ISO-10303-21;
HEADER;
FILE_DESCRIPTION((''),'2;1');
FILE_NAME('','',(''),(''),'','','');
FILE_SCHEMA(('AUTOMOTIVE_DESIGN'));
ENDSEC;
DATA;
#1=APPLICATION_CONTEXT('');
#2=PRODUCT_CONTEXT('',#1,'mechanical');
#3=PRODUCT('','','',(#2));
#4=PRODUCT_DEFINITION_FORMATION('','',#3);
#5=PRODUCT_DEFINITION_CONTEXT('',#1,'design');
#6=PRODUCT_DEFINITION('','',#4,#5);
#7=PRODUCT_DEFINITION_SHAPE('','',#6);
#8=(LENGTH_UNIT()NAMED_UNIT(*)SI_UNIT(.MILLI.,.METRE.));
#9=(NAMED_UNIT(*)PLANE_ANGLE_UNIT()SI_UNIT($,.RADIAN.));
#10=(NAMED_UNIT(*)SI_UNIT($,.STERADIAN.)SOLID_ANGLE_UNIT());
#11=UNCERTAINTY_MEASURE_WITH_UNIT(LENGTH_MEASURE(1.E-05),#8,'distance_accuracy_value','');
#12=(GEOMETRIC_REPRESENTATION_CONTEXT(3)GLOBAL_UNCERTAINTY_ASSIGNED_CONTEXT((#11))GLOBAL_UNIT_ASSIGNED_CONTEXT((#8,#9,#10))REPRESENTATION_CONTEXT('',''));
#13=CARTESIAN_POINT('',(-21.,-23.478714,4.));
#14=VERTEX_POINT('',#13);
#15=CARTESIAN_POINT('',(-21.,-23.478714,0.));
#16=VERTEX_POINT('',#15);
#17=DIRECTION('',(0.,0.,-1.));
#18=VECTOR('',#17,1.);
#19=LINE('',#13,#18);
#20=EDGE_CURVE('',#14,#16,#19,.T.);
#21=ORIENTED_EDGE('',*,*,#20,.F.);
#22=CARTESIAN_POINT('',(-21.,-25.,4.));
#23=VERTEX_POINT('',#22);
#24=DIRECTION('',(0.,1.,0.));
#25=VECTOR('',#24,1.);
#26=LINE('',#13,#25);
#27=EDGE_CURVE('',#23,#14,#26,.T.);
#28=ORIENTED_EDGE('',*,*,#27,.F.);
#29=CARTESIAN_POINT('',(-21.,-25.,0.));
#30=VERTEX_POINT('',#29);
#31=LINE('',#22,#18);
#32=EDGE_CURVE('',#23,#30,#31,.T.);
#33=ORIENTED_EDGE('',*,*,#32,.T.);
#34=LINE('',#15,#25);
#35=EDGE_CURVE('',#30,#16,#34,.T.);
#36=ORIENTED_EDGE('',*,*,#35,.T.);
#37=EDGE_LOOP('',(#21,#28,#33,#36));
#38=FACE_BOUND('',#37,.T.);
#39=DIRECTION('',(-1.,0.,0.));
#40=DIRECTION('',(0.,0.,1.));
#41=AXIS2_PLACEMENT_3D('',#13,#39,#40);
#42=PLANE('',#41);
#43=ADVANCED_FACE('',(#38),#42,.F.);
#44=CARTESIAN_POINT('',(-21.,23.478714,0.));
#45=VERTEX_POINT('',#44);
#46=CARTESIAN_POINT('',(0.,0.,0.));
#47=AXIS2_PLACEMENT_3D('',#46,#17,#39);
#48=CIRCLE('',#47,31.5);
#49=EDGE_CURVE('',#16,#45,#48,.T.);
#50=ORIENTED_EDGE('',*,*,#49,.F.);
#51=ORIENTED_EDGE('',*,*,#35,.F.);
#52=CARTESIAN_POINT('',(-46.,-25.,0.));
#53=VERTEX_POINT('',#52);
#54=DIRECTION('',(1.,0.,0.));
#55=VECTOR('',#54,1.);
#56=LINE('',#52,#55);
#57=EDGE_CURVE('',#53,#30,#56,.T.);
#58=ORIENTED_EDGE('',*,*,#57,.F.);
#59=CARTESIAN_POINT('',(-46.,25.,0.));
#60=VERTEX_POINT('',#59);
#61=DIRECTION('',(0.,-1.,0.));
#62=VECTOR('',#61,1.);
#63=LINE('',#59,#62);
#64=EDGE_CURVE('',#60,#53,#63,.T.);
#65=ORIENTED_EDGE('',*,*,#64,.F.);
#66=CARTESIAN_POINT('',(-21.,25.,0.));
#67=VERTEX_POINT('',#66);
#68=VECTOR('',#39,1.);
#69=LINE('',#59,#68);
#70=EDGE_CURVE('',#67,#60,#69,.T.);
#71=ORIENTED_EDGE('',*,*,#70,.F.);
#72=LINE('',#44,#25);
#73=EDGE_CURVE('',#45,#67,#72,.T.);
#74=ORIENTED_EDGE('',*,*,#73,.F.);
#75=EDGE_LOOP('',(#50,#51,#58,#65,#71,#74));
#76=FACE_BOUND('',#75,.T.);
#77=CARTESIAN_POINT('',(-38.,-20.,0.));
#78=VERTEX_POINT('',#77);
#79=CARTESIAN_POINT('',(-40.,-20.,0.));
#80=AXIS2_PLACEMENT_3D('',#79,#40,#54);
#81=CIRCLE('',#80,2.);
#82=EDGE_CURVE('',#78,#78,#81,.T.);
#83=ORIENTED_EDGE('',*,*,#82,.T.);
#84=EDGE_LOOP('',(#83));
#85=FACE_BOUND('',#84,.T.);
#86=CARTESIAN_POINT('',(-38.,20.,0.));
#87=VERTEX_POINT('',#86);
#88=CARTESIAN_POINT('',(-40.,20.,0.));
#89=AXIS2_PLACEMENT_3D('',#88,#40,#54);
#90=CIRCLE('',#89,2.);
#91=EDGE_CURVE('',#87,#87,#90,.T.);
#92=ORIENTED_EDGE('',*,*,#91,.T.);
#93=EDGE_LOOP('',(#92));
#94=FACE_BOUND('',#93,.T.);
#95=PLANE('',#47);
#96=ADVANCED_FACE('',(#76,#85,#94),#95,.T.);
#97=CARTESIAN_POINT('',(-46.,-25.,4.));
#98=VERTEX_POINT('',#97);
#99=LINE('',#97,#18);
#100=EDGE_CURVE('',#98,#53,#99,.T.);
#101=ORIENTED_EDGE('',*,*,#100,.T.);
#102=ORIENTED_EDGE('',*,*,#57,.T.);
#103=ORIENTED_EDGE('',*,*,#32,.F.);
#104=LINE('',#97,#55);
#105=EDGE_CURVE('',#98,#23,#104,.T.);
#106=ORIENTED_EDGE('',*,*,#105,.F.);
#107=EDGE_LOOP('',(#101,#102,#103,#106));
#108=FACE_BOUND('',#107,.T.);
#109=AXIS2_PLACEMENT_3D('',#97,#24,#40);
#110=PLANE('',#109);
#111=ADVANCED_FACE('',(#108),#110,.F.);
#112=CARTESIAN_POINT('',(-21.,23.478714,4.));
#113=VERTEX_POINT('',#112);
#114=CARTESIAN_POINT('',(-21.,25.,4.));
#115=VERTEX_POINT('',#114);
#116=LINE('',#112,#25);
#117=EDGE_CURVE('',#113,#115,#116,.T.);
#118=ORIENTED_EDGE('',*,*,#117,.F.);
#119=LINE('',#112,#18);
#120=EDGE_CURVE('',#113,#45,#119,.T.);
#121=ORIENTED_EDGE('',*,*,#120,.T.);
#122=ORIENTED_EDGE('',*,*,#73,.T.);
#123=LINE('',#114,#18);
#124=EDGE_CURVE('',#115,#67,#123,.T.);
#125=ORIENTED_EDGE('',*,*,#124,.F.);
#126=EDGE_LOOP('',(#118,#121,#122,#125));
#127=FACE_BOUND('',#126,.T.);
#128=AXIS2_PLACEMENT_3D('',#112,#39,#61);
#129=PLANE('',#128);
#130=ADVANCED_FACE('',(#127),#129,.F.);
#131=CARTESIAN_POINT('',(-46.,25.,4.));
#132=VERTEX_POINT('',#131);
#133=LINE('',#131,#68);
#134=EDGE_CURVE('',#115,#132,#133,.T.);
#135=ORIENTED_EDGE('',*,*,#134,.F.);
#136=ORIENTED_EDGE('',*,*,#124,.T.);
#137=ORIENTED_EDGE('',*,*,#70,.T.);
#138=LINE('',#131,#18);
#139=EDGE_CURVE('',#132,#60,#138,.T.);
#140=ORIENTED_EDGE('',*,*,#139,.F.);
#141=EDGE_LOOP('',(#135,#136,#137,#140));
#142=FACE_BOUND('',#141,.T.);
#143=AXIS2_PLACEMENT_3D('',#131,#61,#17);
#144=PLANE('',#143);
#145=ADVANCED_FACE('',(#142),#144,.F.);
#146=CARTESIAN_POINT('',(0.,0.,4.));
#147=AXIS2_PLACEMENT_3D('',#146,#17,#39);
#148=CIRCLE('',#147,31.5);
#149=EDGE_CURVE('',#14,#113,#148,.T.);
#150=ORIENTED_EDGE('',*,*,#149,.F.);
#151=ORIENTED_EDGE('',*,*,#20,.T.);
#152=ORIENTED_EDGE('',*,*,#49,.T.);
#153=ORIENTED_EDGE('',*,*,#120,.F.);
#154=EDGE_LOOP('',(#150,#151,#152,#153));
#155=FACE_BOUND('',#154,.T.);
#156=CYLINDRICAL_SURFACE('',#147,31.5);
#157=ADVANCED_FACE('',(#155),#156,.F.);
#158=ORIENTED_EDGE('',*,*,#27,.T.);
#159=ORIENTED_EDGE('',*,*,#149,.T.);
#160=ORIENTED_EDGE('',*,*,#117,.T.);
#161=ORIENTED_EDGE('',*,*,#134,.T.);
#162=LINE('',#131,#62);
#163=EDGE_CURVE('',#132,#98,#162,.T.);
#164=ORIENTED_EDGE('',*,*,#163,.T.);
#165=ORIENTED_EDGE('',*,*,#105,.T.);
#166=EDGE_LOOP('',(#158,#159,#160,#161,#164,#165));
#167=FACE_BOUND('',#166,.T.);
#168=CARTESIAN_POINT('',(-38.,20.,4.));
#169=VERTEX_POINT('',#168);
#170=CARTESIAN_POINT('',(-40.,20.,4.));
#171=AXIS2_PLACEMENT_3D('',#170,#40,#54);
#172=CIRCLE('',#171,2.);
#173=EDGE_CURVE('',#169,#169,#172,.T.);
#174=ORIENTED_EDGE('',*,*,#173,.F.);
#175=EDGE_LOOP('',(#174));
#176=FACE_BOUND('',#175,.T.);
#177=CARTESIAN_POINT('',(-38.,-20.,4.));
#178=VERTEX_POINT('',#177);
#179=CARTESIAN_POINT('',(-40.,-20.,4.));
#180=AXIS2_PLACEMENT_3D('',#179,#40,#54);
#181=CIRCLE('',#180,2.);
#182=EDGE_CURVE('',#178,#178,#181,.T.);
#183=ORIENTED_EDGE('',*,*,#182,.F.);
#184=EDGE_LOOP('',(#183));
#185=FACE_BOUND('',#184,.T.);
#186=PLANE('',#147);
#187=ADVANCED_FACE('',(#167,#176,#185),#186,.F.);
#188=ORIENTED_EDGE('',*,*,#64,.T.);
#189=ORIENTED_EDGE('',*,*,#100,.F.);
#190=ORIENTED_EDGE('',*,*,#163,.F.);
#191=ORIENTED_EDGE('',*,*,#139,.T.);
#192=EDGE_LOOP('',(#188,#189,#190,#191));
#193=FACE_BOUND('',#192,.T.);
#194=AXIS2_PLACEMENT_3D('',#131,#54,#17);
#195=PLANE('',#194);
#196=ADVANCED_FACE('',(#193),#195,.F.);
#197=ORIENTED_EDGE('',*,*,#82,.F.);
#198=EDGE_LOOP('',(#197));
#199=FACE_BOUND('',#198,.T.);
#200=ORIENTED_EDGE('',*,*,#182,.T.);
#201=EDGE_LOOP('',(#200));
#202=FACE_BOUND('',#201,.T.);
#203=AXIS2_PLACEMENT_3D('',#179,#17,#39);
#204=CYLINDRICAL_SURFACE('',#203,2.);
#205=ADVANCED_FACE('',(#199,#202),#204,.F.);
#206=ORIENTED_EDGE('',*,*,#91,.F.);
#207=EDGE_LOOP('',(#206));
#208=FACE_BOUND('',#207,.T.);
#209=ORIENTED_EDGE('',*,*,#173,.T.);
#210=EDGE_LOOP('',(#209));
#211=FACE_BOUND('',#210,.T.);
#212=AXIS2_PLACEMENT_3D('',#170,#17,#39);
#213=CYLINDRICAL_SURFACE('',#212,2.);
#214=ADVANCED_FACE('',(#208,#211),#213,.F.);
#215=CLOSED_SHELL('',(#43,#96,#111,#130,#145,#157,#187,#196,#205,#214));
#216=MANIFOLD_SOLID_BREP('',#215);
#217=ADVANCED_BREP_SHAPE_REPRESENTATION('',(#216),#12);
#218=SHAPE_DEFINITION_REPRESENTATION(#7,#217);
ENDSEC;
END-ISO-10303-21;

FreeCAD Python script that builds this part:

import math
import FreeCAD as App
import Part
import Sketcher
from FreeCAD import Vector

doc = App.newDocument("Part")
body = doc.addObject("PartDesign::Body", "Body")

sketch1 = doc.addObject("Sketcher::SketchObject", "Sketch")
body.addObject(sketch1)
sketch1.AttachmentSupport = (doc.XY_Plane, [""])
sketch1.MapMode = "FlatFace"
sketch1.addGeometry([
    Part.LineSegment(Vector(-21, 23.5, 0), Vector(-21, 25, 0)),
    Part.LineSegment(Vector(-21, 25, 0), Vector(-46, 25, 0)),
    Part.LineSegment(Vector(-46, 25, 0), Vector(-46, -25, 0)),
    Part.LineSegment(Vector(-46, -25, 0), Vector(-21, -25, 0)),
    Part.LineSegment(Vector(-21, -25, 0), Vector(-21, -23.5, 0)),
    Part.ArcOfCircle(Part.Circle(Vector(0, 0, 0), Vector(0, 0, 1), 31.5), math.radians(132), math.radians(228)),
    Part.Circle(Vector(-40, -20, 0), Vector(0, 0, 1), 2),
    Part.Circle(Vector(-40, 20, 0), Vector(0, 0, 1), 2),
], False)
sketch1.addConstraint([
    Sketcher.Constraint("Coincident", 0, 2, 1, 1),
    Sketcher.Constraint("Coincident", 1, 2, 2, 1),
    Sketcher.Constraint("Coincident", 2, 2, 3, 1),
    Sketcher.Constraint("Coincident", 3, 2, 4, 1),
    Sketcher.Constraint("Coincident", 4, 2, 5, 2),
    Sketcher.Constraint("Coincident", 5, 1, 0, 1),
    Sketcher.Constraint("Vertical", 0),
    Sketcher.Constraint("Horizontal", 1),
    Sketcher.Constraint("Vertical", 2),
    Sketcher.Constraint("Horizontal", 3),
    Sketcher.Constraint("Vertical", 4),
    Sketcher.Constraint("Coincident", 5, 3, -1, 1),
    Sketcher.Constraint("Equal", 6, 7),
    Sketcher.Constraint("Symmetric", 6, 3, 7, 3, -1),
    Sketcher.Constraint("Symmetric", 0, 2, 3, 2, -1),
    Sketcher.Constraint("Diameter", 6, 4.0),
    Sketcher.Constraint("Radius", 5, 31.5),
    Sketcher.Constraint("DistanceX", 1, 2, 1, 1, 25.0),
    Sketcher.Constraint("DistanceY", 2, 2, 2, 1, 50.0),
    Sketcher.Constraint("DistanceX", 6, 3, -1, 1, 40.0),
    Sketcher.Constraint("DistanceY", 6, 3, -1, 1, 20.0),
    Sketcher.Constraint("DistanceX", 0, 2, -1, 1, 21.0),
])
pad1 = doc.addObject("PartDesign::Pad", "Pad")
body.addObject(pad1)
pad1.Profile = sketch1
pad1.Length = 4

doc.recompute()
